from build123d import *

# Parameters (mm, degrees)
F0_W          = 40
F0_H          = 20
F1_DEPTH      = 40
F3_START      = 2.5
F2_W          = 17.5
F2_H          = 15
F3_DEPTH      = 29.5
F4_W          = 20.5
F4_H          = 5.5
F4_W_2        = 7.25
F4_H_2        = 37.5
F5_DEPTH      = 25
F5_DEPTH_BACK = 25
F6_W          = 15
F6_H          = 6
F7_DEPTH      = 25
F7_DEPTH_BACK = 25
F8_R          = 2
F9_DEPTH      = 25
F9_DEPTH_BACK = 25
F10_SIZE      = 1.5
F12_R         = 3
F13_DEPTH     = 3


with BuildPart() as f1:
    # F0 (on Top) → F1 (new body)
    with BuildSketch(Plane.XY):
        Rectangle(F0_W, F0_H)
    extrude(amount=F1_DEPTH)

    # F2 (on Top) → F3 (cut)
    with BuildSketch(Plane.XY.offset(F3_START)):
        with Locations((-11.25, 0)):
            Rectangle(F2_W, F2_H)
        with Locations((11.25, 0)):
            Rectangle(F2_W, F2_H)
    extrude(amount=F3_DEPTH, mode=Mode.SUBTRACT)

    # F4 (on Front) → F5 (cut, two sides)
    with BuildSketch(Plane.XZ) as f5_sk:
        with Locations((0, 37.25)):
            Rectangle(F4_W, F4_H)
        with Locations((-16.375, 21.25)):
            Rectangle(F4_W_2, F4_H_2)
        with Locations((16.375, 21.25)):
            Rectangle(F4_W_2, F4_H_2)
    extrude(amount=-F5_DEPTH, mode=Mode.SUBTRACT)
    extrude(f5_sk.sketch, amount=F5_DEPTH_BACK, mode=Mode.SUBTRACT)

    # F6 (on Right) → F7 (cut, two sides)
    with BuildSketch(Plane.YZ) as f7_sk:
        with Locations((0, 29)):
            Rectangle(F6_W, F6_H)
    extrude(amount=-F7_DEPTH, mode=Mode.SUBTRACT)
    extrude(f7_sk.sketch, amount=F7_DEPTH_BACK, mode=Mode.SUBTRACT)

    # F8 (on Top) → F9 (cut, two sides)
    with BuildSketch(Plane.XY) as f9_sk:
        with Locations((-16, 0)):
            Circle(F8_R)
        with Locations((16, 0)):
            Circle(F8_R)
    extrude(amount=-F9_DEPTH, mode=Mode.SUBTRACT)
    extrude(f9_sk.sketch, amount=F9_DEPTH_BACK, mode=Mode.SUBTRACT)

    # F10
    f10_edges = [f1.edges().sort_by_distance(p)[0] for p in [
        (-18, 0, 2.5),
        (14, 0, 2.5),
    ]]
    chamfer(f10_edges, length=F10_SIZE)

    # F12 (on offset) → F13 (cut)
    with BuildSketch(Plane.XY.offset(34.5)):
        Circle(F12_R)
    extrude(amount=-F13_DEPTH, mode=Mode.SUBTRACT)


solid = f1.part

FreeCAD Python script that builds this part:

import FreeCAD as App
import Part
import Sketcher
from FreeCAD import Vector
Q = App.Units.Quantity


def edges_at(feature, points):
    """Names of the edges that pass closest to the given points."""
    edges = feature.Shape.Edges
    near = lambda p: min(range(len(edges)), key=lambda i: edges[i].distToShape(Part.Vertex(*p))[0])
    return sorted({f"Edge{near(p) + 1}" for p in points})

doc = App.newDocument("Part")
params = doc.addObject("Spreadsheet::Sheet", "Params")
for row, (alias, value) in enumerate([
    ("sketch1_width", "40 mm"),
    ("sketch1_height", "20 mm"),
    ("pad1_length", "40 mm"),
    ("sketch2_height", "15 mm"),
    ("sketch2_width", "17.5 mm"),
    ("pocket1_length", "29.5 mm"),
    ("sketch3_width", "20.5 mm"),
    ("sketch3_height", "5.5 mm"),
    ("sketch3_height2", "37.5 mm"),
    ("sketch4_width", "15 mm"),
    ("sketch4_height", "6 mm"),
    ("sketch5_diameter", "4 mm"),
    ("chamfer_size", "1.5 mm"),
    ("sketch6_diameter", "6 mm"),
    ("pocket5_length", "3 mm"),
], start=1):
    params.set(f"A{row}", alias)
    params.set(f"B{row}", "=" + value)
    params.setAlias(f"B{row}", alias)

body = doc.addObject("PartDesign::Body", "Body")

# Sketch on XY plane
sketch1 = body.newObject("Sketcher::SketchObject", "Sketch")
sketch1.AttachmentSupport = (doc.getObject("XY_Plane"), [""])
sketch1.MapMode = "FlatFace"
sketch1.addGeometry([
    Part.LineSegment(Vector(-20, 10, 0), Vector(-20, -10, 0)),
    Part.LineSegment(Vector(-20, -10, 0), Vector(20, -10, 0)),
    Part.LineSegment(Vector(20, -10, 0), Vector(20, 10, 0)),
    Part.LineSegment(Vector(20, 10, 0), Vector(-20, 10, 0)),
], False)
sketch1.addConstraint([
    Sketcher.Constraint("Coincident", 0, 2, 1, 1),
    Sketcher.Constraint("Coincident", 1, 2, 2, 1),
    Sketcher.Constraint("Coincident", 2, 2, 3, 1),
    Sketcher.Constraint("Coincident", 3, 2, 0, 1),
    Sketcher.Constraint("Vertical", 0),
    Sketcher.Constraint("Horizontal", 1),
    Sketcher.Constraint("Vertical", 2),
    Sketcher.Constraint("Horizontal", 3),
    Sketcher.Constraint("Symmetric", 0, 2, 2, 2, -1, 1),
    Sketcher.Constraint("DistanceX", 1, 1, 1, 2, Q("40 mm")),
    Sketcher.Constraint("DistanceY", 0, 2, 0, 1, Q("20 mm")),
])
sketch1.setExpression("Constraints[9]", "Params.sketch1_width")
sketch1.setExpression("Constraints[10]", "Params.sketch1_height")
pad1 = body.newObject("PartDesign::Pad", "Pad")
pad1.Profile = sketch1
pad1.setExpression("Length", "Params.pad1_length")

# Sketch on XY plane
sketch2 = body.newObject("Sketcher::SketchObject", "Sketch001")
sketch2.AttachmentSupport = (doc.getObject("XY_Plane"), [""])
sketch2.MapMode = "FlatFace"
sketch2.AttachmentOffset = App.Placement(Vector(0, 0, 2.5), App.Rotation())
sketch2.addGeometry([
    Part.LineSegment(Vector(-20, 8, 0), Vector(-20, -8, 0)),  # 0
    Part.LineSegment(Vector(-20, -8, 0), Vector(-2, -8, 0)),  # 1
    Part.LineSegment(Vector(-2, -8, 0), Vector(-2, 8, 0)),  # 2
    Part.LineSegment(Vector(-2, 8, 0), Vector(-20, 8, 0)),  # 3
    Part.LineSegment(Vector(2, 8, 0), Vector(2, -8, 0)),  # 4
    Part.LineSegment(Vector(2, -8, 0), Vector(20, -8, 0)),  # 5
    Part.LineSegment(Vector(20, -8, 0), Vector(20, 8, 0)),  # 6
    Part.LineSegment(Vector(20, 8, 0), Vector(2, 8, 0)),  # 7
], False)
sketch2.addConstraint([
    Sketcher.Constraint("Coincident", 0, 2, 1, 1),
    Sketcher.Constraint("Coincident", 1, 2, 2, 1),
    Sketcher.Constraint("Coincident", 2, 2, 3, 1),
    Sketcher.Constraint("Coincident", 3, 2, 0, 1),
    Sketcher.Constraint("Coincident", 4, 2, 5, 1),
    Sketcher.Constraint("Coincident", 5, 2, 6, 1),
    Sketcher.Constraint("Coincident", 6, 2, 7, 1),
    Sketcher.Constraint("Coincident", 7, 2, 4, 1),
    Sketcher.Constraint("Vertical", 0),
    Sketcher.Constraint("Horizontal", 1),
    Sketcher.Constraint("Vertical", 2),
    Sketcher.Constraint("Horizontal", 3),
    Sketcher.Constraint("Vertical", 4),
    Sketcher.Constraint("Horizontal", 5),
    Sketcher.Constraint("Vertical", 6),
    Sketcher.Constraint("Horizontal", 7),
    Sketcher.Constraint("Symmetric", 2, 2, 4, 2, -1, 1),
    Sketcher.Constraint("Symmetric", 0, 2, 6, 2, -1, 1),
    Sketcher.Constraint("Horizontal", 1, 2, 4, 2),
    Sketcher.Constraint("DistanceY", 0, 2, 0, 1, Q("15 mm")),
    Sketcher.Constraint("DistanceX", 1, 1, 1, 2, Q("17.5 mm")),
    Sketcher.Constraint("DistanceX", 0, 2, -1, 1, Q("20 mm")),
])
sketch2.setExpression("Constraints[19]", "Params.sketch2_height")
sketch2.setExpression("Constraints[20]", "Params.sketch2_width")
pocket1 = body.newObject("PartDesign::Pocket", "Pocket")
pocket1.Profile = sketch2
pocket1.setExpression("Length", "Params.pocket1_length")
pocket1.Reversed = True

# Sketch on XZ plane
sketch3 = body.newObject("Sketcher::SketchObject", "Sketch002")
sketch3.AttachmentSupport = (doc.getObject("XZ_Plane"), [""])
sketch3.MapMode = "FlatFace"
sketch3.addGeometry([
    Part.LineSegment(Vector(-10, 40, 0), Vector(-10, 34, 0)),  # 0
    Part.LineSegment(Vector(-10, 34, 0), Vector(10, 34, 0)),  # 1
    Part.LineSegment(Vector(10, 34, 0), Vector(10, 40, 0)),  # 2
    Part.LineSegment(Vector(10, 40, 0), Vector(-10, 40, 0)),  # 3
    Part.LineSegment(Vector(-20, 40, 0), Vector(-20, 2, 0)),  # 4
    Part.LineSegment(Vector(-20, 2, 0), Vector(-13, 2, 0)),  # 5
    Part.LineSegment(Vector(-13, 2, 0), Vector(-13, 40, 0)),  # 6
    Part.LineSegment(Vector(-13, 40, 0), Vector(-20, 40, 0)),  # 7
    Part.LineSegment(Vector(13, 40, 0), Vector(13, 2, 0)),  # 8
    Part.LineSegment(Vector(13, 2, 0), Vector(20, 2, 0)),  # 9
    Part.LineSegment(Vector(20, 2, 0), Vector(20, 40, 0)),  # 10
    Part.LineSegment(Vector(20, 40, 0), Vector(13, 40, 0)),  # 11
], False)
sketch3.addConstraint([
    Sketcher.Constraint("Coincident", 0, 2, 1, 1),
    Sketcher.Constraint("Coincident", 1, 2, 2, 1),
    Sketcher.Constraint("Coincident", 2, 2, 3, 1),
    Sketcher.Constraint("Coincident", 3, 2, 0, 1),
    Sketcher.Constraint("Coincident", 4, 2, 5, 1),
    Sketcher.Constraint("Coincident", 5, 2, 6, 1),
    Sketcher.Constraint("Coincident", 6, 2, 7, 1),
    Sketcher.Constraint("Coincident", 7, 2, 4, 1),
    Sketcher.Constraint("Coincident", 8, 2, 9, 1),
    Sketcher.Constraint("Coincident", 9, 2, 10, 1),
    Sketcher.Constraint("Coincident", 10, 2, 11, 1),
    Sketcher.Constraint("Coincident", 11, 2, 8, 1),
    Sketcher.Constraint("Vertical", 0),
    Sketcher.Constraint("Horizontal", 1),
    Sketcher.Constraint("Vertical", 2),
    Sketcher.Constraint("Horizontal", 3),
    Sketcher.Constraint("Vertical", 4),
    Sketcher.Constraint("Horizontal", 5),
    Sketcher.Constraint("Vertical", 6),
    Sketcher.Constraint("Horizontal", 7),
    Sketcher.Constraint("Vertical", 8),
    Sketcher.Constraint("Horizontal", 9),
    Sketcher.Constraint("Vertical", 10),
    Sketcher.Constraint("Horizontal", 11),
    Sketcher.Constraint("Symmetric", 5, 2, 8, 2, -2),
    Sketcher.Constraint("Symmetric", 7, 2, 10, 2, -2),
    Sketcher.Constraint("Horizontal", 3, 2, 6, 2),
    Sketcher.Constraint("DistanceX", 1, 1, 1, 2, Q("20.5 mm")),
    Sketcher.Constraint("DistanceY", 0, 2, 0, 1, Q("5.5 mm")),
    Sketcher.Constraint("DistanceY", 4, 2, 4, 1, Q("37.5 mm")),
    Sketcher.Constraint("DistanceY", -1, 1, 2, 2, Q("40 mm")),
    Sketcher.Constraint("DistanceX", 4, 2, -1, 1, Q("20 mm")),
    Sketcher.Constraint("DistanceX", 5, 2, 1, 2, Q("23 mm")),
    Sketcher.Constraint("DistanceX", 0, 2, 8, 2, Q("23 mm")),
])
sketch3.setExpression("Constraints[27]", "Params.sketch3_width")
sketch3.setExpression("Constraints[28]", "Params.sketch3_height")
sketch3.setExpression("Constraints[29]", "Params.sketch3_height2")
pocket2 = body.newObject("PartDesign::Pocket", "Pocket001")
pocket2.Profile = sketch3
pocket2.Type = "ThroughAll"
pocket2.Midplane = True

# Sketch on YZ plane
sketch4 = body.newObject("Sketcher::SketchObject", "Sketch003")
sketch4.AttachmentSupport = (doc.getObject("YZ_Plane"), [""])
sketch4.MapMode = "FlatFace"
sketch4.addGeometry([
    Part.LineSegment(Vector(-8, 32, 0), Vector(-8, 26, 0)),
    Part.LineSegment(Vector(-8, 26, 0), Vector(8, 26, 0)),
    Part.LineSegment(Vector(8, 26, 0), Vector(8, 32, 0)),
    Part.LineSegment(Vector(8, 32, 0), Vector(-8, 32, 0)),
], False)
sketch4.addConstraint([
    Sketcher.Constraint("Coincident", 0, 2, 1, 1),
    Sketcher.Constraint("Coincident", 1, 2, 2, 1),
    Sketcher.Constraint("Coincident", 2, 2, 3, 1),
    Sketcher.Constraint("Coincident", 3, 2, 0, 1),
    Sketcher.Constraint("Vertical", 0),
    Sketcher.Constraint("Horizontal", 1),
    Sketcher.Constraint("Vertical", 2),
    Sketcher.Constraint("Horizontal", 3),
    Sketcher.Constraint("DistanceX", 1, 1, 1, 2, Q("15 mm")),
    Sketcher.Constraint("DistanceY", 0, 2, 0, 1, Q("6 mm")),
    Sketcher.Constraint("DistanceY", -1, 1, 0, 2, Q("26 mm")),
    Sketcher.Constraint("DistanceX", 0, 2, -1, 1, Q("7.5 mm")),
])
sketch4.setExpression("Constraints[8]", "Params.sketch4_width")
sketch4.setExpression("Constraints[9]", "Params.sketch4_height")
pocket3 = body.newObject("PartDesign::Pocket", "Pocket002")
pocket3.Profile = sketch4
pocket3.Type = "ThroughAll"
pocket3.Midplane = True

# Sketch on XY plane
sketch5 = body.newObject("Sketcher::SketchObject", "Sketch004")
sketch5.AttachmentSupport = (doc.getObject("XY_Plane"), [""])
sketch5.MapMode = "FlatFace"
sketch5.addGeometry([
    Part.Circle(Vector(-16, 0, 0), Vector(0, 0, 1), 2),
    Part.Circle(Vector(16, 0, 0), Vector(0, 0, 1), 2),
], False)
sketch5.addConstraint([
    Sketcher.Constraint("Equal", 0, 1),
    Sketcher.Constraint("Symmetric", 0, 3, 1, 3, -1, 1),
    Sketcher.Constraint("PointOnObject", 0, 3, -1),
    Sketcher.Constraint("Diameter", 0, Q("4 mm")),
    Sketcher.Constraint("DistanceX", 0, 3, -1, 1, Q("16 mm")),
])
sketch5.setExpression("Constraints[3]", "Params.sketch5_diameter")
pocket4 = body.newObject("PartDesign::Pocket", "Pocket003")
pocket4.Profile = sketch5
pocket4.Type = "ThroughAll"
pocket4.Midplane = True
doc.recompute()

chamfer = body.newObject("PartDesign::Chamfer", "Chamfer")
chamfer.Base = (pocket4, edges_at(pocket4, [(-18, 0, 2.5), (14, 0, 2.5)]))
chamfer.setExpression("Size", "Params.chamfer_size")

# Sketch on XY plane
sketch6 = body.newObject("Sketcher::SketchObject", "Sketch005")
sketch6.AttachmentSupport = (doc.getObject("XY_Plane"), [""])
sketch6.MapMode = "FlatFace"
sketch6.AttachmentOffset = App.Placement(Vector(0, 0, 34.5), App.Rotation())
sketch6.addGeometry(Part.Circle(Vector(0, 0, 0), Vector(0, 0, 1), 3), False)
sketch6.addConstraint([
    Sketcher.Constraint("Coincident", 0, 3, -1, 1),
    Sketcher.Constraint("Diameter", 0, Q("6 mm")),
])
sketch6.setExpression("Constraints[1]", "Params.sketch6_diameter")
pocket5 = body.newObject("PartDesign::Pocket", "Pocket004")
pocket5.Profile = sketch6
pocket5.setExpression("Length", "Params.pocket5_length")

doc.recompute()
